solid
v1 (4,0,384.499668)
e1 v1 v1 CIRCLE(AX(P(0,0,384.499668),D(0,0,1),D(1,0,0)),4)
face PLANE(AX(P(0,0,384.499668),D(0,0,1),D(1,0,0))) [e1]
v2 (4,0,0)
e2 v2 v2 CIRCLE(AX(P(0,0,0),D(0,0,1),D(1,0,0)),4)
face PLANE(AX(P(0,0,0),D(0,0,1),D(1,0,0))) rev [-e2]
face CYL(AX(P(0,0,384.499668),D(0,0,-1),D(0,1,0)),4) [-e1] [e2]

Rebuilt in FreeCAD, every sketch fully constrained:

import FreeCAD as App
import Part
import Sketcher
Q = App.Units.Quantity

doc = App.newDocument("Part")
body = doc.addObject("PartDesign::Body", "Body")

# Sketch on XY plane
sketch1 = doc.addObject("Sketcher::SketchObject", "Sketch")
body.addObject(sketch1)
sketch1.AttachmentSupport = (doc.XY_Plane, [""])
sketch1.MapMode = "FlatFace"
sketch1.addGeometry(Part.Circle(App.Vector(0, 0, 0), App.Vector(0, 0, 1), 4), False)
sketch1.addConstraint([
    Sketcher.Constraint("Coincident", 0, 3, -1, 1),
    Sketcher.Constraint("Diameter", 0, Q("8 mm")),
])

# Sketch on XZ plane
sketch2 = doc.addObject("Sketcher::SketchObject", "Sketch001")
body.addObject(sketch2)
sketch2.AttachmentSupport = (doc.XZ_Plane, [""])
sketch2.MapMode = "FlatFace"
sketch2.addGeometry(Part.LineSegment(App.Vector(0, 0, 0), App.Vector(0, 384, 0)), False)
sketch2.addConstraint([
    Sketcher.Constraint("Vertical", 0),
    Sketcher.Constraint("Coincident", 0, 1, -1, 1),
    Sketcher.Constraint("DistanceY", 0, 1, 0, 2, Q("384.499668 mm")),
])
doc.recompute()

additivepipe = doc.addObject("PartDesign::AdditivePipe", "AdditivePipe")
body.addObject(additivepipe)
additivepipe.Profile = sketch1
additivepipe.Spine = (sketch2, ["Edge1"])

doc.recompute()
